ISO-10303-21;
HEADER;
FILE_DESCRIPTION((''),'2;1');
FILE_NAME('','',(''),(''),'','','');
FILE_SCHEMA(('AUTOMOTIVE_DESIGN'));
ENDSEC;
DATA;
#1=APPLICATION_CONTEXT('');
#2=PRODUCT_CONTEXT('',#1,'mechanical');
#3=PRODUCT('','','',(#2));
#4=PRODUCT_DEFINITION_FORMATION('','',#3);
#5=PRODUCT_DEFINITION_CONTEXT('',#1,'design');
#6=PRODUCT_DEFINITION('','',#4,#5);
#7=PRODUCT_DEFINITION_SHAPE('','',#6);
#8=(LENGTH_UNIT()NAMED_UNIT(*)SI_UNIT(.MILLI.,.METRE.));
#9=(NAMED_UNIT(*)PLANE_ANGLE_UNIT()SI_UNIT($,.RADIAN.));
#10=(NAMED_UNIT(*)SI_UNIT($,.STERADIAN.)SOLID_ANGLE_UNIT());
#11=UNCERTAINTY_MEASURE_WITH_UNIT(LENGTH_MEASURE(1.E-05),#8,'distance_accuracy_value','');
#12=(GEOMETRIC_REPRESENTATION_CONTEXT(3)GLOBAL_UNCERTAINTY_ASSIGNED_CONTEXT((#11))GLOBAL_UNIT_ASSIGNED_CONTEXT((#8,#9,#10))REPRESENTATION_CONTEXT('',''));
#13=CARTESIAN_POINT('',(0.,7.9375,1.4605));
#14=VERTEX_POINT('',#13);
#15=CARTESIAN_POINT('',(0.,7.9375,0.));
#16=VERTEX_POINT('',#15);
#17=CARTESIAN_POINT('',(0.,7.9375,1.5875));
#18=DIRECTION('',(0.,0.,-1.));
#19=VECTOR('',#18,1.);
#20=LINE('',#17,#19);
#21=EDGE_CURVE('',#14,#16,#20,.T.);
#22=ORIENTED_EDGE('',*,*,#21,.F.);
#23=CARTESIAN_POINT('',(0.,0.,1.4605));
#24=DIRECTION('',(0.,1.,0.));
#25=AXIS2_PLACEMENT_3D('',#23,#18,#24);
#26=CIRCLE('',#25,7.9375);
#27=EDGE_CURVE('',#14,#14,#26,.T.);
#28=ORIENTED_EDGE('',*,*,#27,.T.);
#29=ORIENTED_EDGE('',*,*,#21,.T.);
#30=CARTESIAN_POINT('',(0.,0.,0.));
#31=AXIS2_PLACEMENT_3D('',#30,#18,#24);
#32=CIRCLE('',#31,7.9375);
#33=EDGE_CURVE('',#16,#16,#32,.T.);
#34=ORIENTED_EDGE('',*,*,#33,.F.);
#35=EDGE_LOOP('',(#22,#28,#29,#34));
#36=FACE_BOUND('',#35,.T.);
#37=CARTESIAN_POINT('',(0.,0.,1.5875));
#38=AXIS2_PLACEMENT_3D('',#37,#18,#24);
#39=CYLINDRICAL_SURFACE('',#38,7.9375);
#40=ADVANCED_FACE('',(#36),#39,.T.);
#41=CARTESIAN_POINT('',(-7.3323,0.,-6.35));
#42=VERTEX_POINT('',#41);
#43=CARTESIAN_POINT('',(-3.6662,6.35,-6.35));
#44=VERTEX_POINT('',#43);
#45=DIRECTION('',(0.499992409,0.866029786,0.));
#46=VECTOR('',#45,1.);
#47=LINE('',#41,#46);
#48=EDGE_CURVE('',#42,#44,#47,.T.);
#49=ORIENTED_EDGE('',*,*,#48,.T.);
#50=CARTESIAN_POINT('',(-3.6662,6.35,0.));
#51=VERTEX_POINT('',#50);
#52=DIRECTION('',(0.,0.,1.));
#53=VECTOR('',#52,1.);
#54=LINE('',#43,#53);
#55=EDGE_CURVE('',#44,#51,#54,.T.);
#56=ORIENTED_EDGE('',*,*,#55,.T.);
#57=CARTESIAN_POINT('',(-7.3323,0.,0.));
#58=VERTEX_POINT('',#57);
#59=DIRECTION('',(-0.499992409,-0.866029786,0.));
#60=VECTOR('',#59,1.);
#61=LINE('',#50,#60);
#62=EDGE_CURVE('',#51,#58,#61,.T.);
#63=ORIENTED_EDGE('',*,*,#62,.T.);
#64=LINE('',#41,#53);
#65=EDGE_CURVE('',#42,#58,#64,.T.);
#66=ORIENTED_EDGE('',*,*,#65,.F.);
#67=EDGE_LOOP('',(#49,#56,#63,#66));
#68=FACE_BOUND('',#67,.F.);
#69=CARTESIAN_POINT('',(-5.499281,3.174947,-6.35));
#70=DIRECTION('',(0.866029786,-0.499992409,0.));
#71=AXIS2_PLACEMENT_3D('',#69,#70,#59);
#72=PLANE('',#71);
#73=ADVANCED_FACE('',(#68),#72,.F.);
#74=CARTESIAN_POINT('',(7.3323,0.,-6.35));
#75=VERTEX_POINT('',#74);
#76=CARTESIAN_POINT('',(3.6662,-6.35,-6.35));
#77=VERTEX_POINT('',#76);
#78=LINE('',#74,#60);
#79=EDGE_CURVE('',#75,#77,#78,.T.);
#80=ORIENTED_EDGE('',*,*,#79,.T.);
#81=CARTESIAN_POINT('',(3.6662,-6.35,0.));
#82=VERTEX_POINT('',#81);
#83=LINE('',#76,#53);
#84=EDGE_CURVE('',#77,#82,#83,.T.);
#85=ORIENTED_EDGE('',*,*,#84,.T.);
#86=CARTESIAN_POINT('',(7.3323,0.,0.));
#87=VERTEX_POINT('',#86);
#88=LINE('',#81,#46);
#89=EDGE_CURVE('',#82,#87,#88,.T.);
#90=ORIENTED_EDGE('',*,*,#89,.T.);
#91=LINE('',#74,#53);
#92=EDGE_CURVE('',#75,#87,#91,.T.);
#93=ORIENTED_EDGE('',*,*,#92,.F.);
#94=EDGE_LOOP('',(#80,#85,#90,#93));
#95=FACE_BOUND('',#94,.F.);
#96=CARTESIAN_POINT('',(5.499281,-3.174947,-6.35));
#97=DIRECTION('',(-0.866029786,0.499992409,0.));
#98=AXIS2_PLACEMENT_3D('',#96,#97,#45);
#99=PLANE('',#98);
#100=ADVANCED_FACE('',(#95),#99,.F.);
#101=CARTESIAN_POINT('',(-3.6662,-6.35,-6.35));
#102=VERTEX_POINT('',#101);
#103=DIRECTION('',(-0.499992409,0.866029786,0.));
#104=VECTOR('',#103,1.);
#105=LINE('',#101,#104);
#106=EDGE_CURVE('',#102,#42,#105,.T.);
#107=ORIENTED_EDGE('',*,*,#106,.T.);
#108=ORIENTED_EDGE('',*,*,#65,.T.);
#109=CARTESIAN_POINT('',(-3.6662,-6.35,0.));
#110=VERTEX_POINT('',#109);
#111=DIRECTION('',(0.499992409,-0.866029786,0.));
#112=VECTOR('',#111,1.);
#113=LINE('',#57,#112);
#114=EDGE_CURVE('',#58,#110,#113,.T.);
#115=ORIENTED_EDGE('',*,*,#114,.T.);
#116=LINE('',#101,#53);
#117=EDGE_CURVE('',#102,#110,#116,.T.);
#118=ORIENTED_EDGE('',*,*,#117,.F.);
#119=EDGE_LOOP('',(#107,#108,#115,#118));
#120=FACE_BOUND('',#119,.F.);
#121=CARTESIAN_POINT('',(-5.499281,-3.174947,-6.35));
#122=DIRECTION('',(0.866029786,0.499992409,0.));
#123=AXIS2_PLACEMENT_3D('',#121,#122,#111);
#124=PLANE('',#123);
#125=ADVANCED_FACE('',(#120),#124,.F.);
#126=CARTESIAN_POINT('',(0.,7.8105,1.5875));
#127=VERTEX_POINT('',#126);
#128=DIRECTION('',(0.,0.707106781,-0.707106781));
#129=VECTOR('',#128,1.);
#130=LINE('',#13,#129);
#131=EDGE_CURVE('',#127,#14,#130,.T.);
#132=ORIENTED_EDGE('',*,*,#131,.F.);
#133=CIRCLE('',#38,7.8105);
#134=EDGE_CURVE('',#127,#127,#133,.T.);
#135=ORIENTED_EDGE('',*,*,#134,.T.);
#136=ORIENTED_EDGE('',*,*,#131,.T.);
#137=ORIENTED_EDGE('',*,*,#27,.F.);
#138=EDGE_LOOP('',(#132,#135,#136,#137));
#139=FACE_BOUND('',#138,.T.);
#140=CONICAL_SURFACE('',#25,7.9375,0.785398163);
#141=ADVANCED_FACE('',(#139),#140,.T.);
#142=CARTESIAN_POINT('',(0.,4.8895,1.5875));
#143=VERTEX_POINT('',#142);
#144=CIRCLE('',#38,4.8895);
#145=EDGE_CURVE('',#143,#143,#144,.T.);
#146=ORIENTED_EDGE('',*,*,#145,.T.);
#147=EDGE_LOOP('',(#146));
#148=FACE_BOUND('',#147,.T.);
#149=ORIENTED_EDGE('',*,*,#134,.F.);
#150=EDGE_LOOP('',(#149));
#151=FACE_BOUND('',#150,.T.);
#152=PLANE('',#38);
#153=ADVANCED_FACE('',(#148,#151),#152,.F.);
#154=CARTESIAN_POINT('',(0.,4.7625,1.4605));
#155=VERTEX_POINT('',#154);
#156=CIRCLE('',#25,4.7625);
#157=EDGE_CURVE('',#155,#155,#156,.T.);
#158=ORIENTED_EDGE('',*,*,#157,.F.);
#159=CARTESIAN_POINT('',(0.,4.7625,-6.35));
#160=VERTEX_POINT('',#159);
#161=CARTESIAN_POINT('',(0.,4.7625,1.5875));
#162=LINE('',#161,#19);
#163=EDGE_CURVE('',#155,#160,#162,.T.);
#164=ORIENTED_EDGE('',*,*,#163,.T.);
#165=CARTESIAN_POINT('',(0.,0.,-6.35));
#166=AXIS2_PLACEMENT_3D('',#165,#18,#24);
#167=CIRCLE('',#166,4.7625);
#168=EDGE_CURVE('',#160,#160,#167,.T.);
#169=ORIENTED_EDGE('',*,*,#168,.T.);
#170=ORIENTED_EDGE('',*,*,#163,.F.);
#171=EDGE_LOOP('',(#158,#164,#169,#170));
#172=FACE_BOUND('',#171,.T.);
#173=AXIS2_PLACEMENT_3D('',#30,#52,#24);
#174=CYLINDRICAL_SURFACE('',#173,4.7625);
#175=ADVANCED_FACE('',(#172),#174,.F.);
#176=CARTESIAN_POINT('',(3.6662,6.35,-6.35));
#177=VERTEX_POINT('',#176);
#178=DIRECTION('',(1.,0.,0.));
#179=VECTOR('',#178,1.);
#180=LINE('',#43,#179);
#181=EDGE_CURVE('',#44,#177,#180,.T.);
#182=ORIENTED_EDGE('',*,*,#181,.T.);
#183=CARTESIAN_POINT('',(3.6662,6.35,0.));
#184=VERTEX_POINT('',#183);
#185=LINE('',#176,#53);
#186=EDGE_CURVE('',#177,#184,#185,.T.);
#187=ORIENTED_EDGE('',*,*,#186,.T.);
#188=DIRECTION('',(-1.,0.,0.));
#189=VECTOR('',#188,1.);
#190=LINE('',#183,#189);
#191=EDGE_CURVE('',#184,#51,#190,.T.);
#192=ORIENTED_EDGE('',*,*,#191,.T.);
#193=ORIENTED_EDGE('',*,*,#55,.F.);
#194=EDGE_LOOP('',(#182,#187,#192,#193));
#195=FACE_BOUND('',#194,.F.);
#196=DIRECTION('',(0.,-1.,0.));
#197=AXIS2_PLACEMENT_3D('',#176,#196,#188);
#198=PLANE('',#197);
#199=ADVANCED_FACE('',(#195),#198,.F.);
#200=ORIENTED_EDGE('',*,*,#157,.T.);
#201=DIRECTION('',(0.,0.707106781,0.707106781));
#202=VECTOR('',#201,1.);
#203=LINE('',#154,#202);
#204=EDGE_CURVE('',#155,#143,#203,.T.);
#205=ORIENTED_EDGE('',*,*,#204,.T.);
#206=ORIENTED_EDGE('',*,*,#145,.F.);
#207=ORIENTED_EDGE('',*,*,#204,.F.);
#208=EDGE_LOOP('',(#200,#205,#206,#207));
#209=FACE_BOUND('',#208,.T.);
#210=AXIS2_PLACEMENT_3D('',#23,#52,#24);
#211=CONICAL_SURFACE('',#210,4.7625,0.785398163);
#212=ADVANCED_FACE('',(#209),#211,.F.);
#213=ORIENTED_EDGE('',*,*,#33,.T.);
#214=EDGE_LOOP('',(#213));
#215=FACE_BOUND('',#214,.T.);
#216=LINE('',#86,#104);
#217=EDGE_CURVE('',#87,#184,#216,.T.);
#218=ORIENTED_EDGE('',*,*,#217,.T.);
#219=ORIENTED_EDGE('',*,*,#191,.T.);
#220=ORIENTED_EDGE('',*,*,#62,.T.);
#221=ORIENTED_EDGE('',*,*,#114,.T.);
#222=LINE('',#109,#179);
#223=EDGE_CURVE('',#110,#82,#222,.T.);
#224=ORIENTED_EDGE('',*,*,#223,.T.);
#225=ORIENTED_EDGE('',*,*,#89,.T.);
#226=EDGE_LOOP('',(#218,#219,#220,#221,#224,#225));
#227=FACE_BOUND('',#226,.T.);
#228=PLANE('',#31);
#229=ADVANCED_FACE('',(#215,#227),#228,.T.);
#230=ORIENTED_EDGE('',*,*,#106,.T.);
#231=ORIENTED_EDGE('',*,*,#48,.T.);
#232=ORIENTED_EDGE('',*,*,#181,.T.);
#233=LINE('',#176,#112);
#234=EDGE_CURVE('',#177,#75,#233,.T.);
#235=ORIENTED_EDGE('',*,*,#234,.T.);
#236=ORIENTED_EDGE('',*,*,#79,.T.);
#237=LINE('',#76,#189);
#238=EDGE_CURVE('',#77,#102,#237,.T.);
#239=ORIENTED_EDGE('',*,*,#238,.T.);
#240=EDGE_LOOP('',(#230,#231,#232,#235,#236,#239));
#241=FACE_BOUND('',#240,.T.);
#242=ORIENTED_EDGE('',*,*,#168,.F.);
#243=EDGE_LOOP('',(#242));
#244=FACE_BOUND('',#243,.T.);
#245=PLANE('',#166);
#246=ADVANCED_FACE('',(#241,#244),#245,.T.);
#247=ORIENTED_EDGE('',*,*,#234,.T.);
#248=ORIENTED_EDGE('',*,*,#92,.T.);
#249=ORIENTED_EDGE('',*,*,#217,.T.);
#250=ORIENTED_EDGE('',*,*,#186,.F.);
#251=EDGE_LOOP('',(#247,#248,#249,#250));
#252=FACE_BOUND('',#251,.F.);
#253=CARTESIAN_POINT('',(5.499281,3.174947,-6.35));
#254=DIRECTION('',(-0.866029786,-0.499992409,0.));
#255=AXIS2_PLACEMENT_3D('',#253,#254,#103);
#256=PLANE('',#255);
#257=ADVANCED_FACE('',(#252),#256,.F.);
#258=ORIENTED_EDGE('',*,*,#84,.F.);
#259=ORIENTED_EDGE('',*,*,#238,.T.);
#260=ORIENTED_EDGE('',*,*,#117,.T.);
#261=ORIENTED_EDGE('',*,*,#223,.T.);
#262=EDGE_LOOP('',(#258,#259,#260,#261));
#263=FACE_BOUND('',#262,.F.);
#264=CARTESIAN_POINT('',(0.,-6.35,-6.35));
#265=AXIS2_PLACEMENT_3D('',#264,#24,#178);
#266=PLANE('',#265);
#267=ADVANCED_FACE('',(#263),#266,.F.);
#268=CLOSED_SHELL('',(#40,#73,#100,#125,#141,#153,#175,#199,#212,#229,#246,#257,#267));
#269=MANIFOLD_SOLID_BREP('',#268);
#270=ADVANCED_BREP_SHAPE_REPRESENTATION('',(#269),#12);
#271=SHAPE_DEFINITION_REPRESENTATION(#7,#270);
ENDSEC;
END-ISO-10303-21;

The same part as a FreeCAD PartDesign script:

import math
import FreeCAD as App
import Part
import Sketcher

V = App.Vector
Q = App.Units.Quantity


def edges_at(feature, points):
    """Names of the edges that pass closest to the given points."""
    edges = feature.Shape.Edges
    near = lambda p: min(range(len(edges)), key=lambda i: edges[i].distToShape(Part.Vertex(*p))[0])
    return sorted({f"Edge{near(p) + 1}" for p in points})


def add_polygon(sketch, points):
    """Adds a closed chain of lines whose ends are joined by coincident constraints."""
    first, n = sketch.GeometryCount, len(points)
    for a, b in zip(points, points[1:] + points[:1]):
        sketch.addGeometry(Part.LineSegment(App.Vector(*a, 0), App.Vector(*b, 0)), False)
    for i in range(n):
        sketch.addConstraint(Sketcher.Constraint("Coincident", first + i, 2, first + (i + 1) % n, 1))

doc = App.newDocument("Part")
body = doc.addObject("PartDesign::Body", "Body")

# Sketch on YZ plane
sketch1 = body.newObject("Sketcher::SketchObject", "Sketch")
sketch1.AttachmentSupport = (doc.getObject("YZ_Plane"), [""])
sketch1.MapMode = "FlatFace"
add_polygon(sketch1, [(4.8, 1.6), (4.8, -6.3), (6.3, -6.3), (6.3, 0), (7.9, 0), (7.9, 1.6)])  # lines 0-5
sketch1.addConstraint([
    Sketcher.Constraint("Vertical", 0),
    Sketcher.Constraint("Horizontal", 1),
    Sketcher.Constraint("Vertical", 2),
    Sketcher.Constraint("Horizontal", 3),
    Sketcher.Constraint("Vertical", 4),
    Sketcher.Constraint("Horizontal", 5),
    Sketcher.Constraint("PointOnObject", 2, 2, -1),
    Sketcher.Constraint("Equal", 1, 3),
    Sketcher.Constraint("Equal", 3, 4),
    Sketcher.Constraint("DistanceY", 2, 1, 2, 2, Q("0.25 in")),
    Sketcher.Constraint("DistanceX", 1, 1, 1, 2, Q("0.0625 in")),
    Sketcher.Constraint("DistanceX", -1, 1, 1, 2, Q("0.25 in")),
])
revolution = body.newObject("PartDesign::Revolution", "Revolution")
revolution.Profile = sketch1
revolution.ReferenceAxis = (sketch1, ["V_Axis"])
revolution.Angle = 360

# Sketch on XY plane
sketch2 = body.newObject("Sketcher::SketchObject", "Sketch001")
sketch2.AttachmentSupport = (doc.getObject("XY_Plane"), [""])
sketch2.MapMode = "FlatFace"
sketch2.AttachmentOffset = App.Placement(V(0, 0, -0.25 * 25.4), App.Rotation())
sketch2.addGeometry([
    Part.ArcOfCircle(Part.Circle(V(0, 0, 0), V(0, 0, 1), 6.3), math.radians(150), math.radians(210)),  # 0
    Part.LineSegment(V(-5.5, -3.2, 0), V(-7.3, 0, 0)),  # 1
    Part.LineSegment(V(-7.3, 0, 0), V(-5.5, 3.2, 0)),  # 2
    Part.ArcOfCircle(Part.Circle(V(0, 0, 0), V(0, 0, 1), 6.3), math.radians(90), math.radians(150)),  # 3
    Part.LineSegment(V(-5.5, 3.2, 0), V(-3.7, 6.3, 0)),  # 4
    Part.LineSegment(V(-3.7, 6.3, 0), V(0, 6.3, 0)),  # 5
    Part.LineSegment(V(-3.7, -6.3, 0), V(-5.5, -3.2, 0)),  # 6
    Part.ArcOfCircle(Part.Circle(V(0, 0, 0), V(0, 0, 1), 6.3), math.radians(-150), math.radians(-90)),  # 7
    Part.LineSegment(V(0, -6.3, 0), V(-3.7, -6.3, 0)),  # 8
    Part.ArcOfCircle(Part.Circle(V(0, 0, 0), V(0, 0, 1), 6.3), math.radians(30), math.radians(90)),  # 9
    Part.LineSegment(V(0, 6.3, 0), V(3.7, 6.3, 0)),  # 10
    Part.LineSegment(V(3.7, 6.3, 0), V(5.5, 3.2, 0)),  # 11
    Part.LineSegment(V(3.7, -6.3, 0), V(0, -6.3, 0)),  # 12
    Part.ArcOfCircle(Part.Circle(V(0, 0, 0), V(0, 0, 1), 6.3), math.radians(-90), math.radians(-30)),  # 13
    Part.LineSegment(V(5.5, -3.2, 0), V(3.7, -6.3, 0)),  # 14
    Part.ArcOfCircle(Part.Circle(V(0, 0, 0), V(0, 0, 1), 6.3), math.radians(-30), math.radians(30)),  # 15
    Part.LineSegment(V(5.5, 3.2, 0), V(7.3, 0, 0)),  # 16
    Part.LineSegment(V(7.3, 0, 0), V(5.5, -3.2, 0)),  # 17
], False)
sketch2.addConstraint([
    Sketcher.Constraint("Tangent", 0, 2, 1, 1),
    Sketcher.Constraint("Coincident", 1, 2, 2, 1),
    Sketcher.Constraint("Tangent", 2, 2, 0, 1),
    Sketcher.Constraint("Tangent", 3, 2, 4, 1),
    Sketcher.Constraint("Coincident", 4, 2, 5, 1),
    Sketcher.Constraint("Tangent", 5, 2, 3, 1),
    Sketcher.Constraint("Tangent", 6, 2, 7, 1),
    Sketcher.Constraint("Tangent", 7, 2, 8, 1),
    Sketcher.Constraint("Coincident", 8, 2, 6, 1),
    Sketcher.Constraint("Tangent", 9, 2, 10, 1),
    Sketcher.Constraint("Coincident", 10, 2, 11, 1),
    Sketcher.Constraint("Tangent", 11, 2, 9, 1),
    Sketcher.Constraint("Tangent", 12, 2, 13, 1),
    Sketcher.Constraint("Tangent", 13, 2, 14, 1),
    Sketcher.Constraint("Coincident", 14, 2, 12, 1),
    Sketcher.Constraint("Tangent", 15, 2, 16, 1),
    Sketcher.Constraint("Coincident", 16, 2, 17, 1),
    Sketcher.Constraint("Tangent", 17, 2, 15, 1),
    Sketcher.Constraint("Horizontal", 5),
    Sketcher.Constraint("Horizontal", 8),
    Sketcher.Constraint("Horizontal", 10),
    Sketcher.Constraint("Horizontal", 12),
    Sketcher.Constraint("Coincident", 0, 3, -1, 1),
    Sketcher.Constraint("Coincident", 3, 3, -1, 1),
    Sketcher.Constraint("Coincident", 7, 3, -1, 1),
    Sketcher.Constraint("Coincident", 9, 3, -1, 1),
    Sketcher.Constraint("Coincident", 13, 3, -1, 1),
    Sketcher.Constraint("Coincident", 15, 3, -1, 1),
    Sketcher.Constraint("Coincident", 3, 2, 2, 2),
    Sketcher.Constraint("Coincident", 6, 2, 0, 2),
    Sketcher.Constraint("Coincident", 15, 2, 11, 2),
    Sketcher.Constraint("Coincident", 17, 2, 13, 2),
    Sketcher.Constraint("Equal", 7, 9),
    Sketcher.Constraint("Symmetric", 1, 2, 16, 2, -1, 1),
    Sketcher.Constraint("PointOnObject", 1, 2, -1),
    Sketcher.Constraint("Equal", 2, 4),
    Sketcher.Constraint("Radius", 0, Q("0.25 in")),
])
pad1 = body.newObject("PartDesign::Pad", "Pad")
pad1.Profile = sketch2
pad1.Length = Q("0.25 in")
doc.recompute()

chamfer = body.newObject("PartDesign::Chamfer", "Chamfer")
chamfer.Base = (pad1, edges_at(pad1, [(0, -7.938, 1.587), (0, -4.763, 1.587)]))
chamfer.Size = Q("0.005 in")

doc.recompute()
